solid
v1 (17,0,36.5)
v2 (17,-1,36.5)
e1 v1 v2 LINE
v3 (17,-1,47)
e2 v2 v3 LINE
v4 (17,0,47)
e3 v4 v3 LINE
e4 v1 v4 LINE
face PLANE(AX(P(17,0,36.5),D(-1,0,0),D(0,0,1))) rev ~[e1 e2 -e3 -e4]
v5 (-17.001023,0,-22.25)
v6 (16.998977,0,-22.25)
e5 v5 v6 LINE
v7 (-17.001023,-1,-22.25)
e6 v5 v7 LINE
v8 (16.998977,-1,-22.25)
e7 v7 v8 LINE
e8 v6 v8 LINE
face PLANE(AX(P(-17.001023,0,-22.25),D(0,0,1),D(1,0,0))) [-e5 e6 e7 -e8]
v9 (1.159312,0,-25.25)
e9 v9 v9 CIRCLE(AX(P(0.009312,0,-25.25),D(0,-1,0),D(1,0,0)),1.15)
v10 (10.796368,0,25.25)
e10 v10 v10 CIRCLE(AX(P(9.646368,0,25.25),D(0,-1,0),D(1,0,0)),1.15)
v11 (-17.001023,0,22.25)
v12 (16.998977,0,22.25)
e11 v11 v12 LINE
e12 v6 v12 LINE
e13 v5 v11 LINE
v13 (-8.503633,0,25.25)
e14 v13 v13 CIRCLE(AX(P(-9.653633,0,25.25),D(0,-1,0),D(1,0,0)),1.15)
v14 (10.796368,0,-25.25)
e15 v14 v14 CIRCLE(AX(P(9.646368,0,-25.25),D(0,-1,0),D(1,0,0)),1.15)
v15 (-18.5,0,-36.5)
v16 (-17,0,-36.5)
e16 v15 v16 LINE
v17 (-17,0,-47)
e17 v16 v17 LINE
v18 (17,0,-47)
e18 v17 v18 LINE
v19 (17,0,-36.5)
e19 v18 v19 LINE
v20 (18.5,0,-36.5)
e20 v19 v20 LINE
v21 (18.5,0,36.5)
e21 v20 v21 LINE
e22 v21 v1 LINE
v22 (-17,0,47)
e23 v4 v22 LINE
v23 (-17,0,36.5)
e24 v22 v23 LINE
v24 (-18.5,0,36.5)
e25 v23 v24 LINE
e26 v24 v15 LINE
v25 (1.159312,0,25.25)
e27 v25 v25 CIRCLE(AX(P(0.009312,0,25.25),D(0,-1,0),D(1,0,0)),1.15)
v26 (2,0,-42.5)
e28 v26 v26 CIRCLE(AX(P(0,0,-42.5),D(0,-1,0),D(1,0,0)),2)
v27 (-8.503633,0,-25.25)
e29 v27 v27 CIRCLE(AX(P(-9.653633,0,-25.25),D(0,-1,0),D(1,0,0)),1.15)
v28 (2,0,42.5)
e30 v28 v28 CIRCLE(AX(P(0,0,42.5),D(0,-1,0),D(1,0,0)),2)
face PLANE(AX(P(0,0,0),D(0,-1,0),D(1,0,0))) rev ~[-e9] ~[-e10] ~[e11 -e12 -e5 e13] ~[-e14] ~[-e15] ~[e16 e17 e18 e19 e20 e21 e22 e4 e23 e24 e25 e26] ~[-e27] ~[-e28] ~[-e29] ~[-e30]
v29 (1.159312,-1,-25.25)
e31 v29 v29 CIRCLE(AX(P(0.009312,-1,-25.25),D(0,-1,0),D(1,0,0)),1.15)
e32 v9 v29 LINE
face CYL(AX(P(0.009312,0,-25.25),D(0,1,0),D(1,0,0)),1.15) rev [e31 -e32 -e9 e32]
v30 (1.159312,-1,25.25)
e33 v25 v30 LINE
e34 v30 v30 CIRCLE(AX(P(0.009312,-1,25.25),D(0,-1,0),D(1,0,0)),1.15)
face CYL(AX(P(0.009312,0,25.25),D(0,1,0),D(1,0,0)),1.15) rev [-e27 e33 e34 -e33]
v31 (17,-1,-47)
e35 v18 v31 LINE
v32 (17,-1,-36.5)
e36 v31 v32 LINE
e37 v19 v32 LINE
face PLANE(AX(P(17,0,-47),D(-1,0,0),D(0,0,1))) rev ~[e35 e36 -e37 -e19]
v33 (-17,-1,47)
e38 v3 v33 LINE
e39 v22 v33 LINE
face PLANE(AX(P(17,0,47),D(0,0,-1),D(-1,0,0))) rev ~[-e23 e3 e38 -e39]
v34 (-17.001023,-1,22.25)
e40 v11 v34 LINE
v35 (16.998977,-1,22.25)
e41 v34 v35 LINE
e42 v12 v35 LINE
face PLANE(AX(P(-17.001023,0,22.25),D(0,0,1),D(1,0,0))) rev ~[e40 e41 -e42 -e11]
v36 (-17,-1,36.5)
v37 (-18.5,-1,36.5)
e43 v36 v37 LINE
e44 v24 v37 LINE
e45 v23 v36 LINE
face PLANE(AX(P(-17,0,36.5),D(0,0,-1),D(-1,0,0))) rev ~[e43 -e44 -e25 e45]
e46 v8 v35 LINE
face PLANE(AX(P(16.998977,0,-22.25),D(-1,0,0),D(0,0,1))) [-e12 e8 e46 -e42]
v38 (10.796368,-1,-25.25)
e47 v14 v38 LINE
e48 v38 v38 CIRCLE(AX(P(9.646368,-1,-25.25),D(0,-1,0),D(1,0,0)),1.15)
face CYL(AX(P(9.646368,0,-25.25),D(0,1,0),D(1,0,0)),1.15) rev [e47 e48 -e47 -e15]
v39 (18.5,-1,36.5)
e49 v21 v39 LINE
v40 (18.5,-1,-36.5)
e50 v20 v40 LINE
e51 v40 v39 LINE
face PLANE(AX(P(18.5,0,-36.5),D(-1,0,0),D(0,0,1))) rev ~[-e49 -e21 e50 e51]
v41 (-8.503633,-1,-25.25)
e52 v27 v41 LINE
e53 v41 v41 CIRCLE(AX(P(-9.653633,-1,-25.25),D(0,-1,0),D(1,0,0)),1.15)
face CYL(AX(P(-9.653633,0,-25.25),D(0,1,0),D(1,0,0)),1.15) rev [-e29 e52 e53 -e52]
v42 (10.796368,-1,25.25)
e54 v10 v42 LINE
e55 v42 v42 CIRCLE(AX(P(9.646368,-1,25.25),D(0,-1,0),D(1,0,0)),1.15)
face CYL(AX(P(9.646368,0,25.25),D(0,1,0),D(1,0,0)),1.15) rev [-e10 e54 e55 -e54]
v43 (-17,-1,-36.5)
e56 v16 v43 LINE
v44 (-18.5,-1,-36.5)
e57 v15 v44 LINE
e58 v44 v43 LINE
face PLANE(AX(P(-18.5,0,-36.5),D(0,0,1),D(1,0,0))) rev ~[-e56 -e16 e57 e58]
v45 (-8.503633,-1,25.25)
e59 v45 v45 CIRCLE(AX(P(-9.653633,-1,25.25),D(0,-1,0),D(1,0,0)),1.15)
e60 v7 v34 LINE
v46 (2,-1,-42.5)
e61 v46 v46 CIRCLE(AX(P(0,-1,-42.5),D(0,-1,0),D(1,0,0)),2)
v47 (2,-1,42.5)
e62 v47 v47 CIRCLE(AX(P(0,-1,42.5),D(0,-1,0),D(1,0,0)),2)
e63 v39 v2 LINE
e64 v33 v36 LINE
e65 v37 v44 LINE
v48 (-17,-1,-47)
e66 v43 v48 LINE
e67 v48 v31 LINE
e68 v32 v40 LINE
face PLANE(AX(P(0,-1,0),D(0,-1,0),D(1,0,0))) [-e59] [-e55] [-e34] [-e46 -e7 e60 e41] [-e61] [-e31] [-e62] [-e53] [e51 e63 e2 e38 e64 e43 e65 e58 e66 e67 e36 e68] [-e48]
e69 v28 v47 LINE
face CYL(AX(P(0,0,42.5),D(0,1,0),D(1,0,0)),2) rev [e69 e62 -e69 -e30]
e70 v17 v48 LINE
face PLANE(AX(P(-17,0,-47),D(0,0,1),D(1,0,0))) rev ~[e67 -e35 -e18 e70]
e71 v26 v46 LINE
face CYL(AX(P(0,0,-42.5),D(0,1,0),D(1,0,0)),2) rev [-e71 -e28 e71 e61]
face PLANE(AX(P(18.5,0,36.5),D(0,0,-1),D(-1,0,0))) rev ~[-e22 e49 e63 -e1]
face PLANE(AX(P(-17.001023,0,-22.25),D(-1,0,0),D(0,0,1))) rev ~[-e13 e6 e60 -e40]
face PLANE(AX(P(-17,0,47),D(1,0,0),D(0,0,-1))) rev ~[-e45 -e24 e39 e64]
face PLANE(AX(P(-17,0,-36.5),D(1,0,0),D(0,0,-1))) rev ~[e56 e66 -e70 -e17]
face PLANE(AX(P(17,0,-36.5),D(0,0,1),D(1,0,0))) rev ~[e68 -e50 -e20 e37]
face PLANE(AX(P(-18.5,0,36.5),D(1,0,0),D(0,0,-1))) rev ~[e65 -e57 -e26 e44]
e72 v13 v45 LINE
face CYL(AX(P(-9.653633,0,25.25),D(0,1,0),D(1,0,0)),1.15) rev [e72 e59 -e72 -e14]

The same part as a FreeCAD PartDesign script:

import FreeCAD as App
import Part
import Sketcher

V = App.Vector


def add_polygon(sketch, points):
    """Adds a closed chain of lines whose ends are joined by coincident constraints."""
    first, n = sketch.GeometryCount, len(points)
    for a, b in zip(points, points[1:] + points[:1]):
        sketch.addGeometry(Part.LineSegment(App.Vector(*a, 0), App.Vector(*b, 0)), False)
    for i in range(n):
        sketch.addConstraint(Sketcher.Constraint("Coincident", first + i, 2, first + (i + 1) % n, 1))

doc = App.newDocument("Part")
params = doc.addObject("Spreadsheet::Sheet", "Params")
for row, (alias, value) in enumerate([
    ("sketch1_diameter", "4 mm"),
    ("sketch1_diameter2", "2.3 mm"),
    ("sketch1_width", "34 mm"),
    ("sketch1_height", "73 mm"),
    ("sketch1_width2", "1.5 mm"),
    ("pad1_length", "1 mm"),
], start=1):
    params.set(f"A{row}", alias)
    params.set(f"B{row}", "=" + value)
    params.setAlias(f"B{row}", alias)

body = doc.addObject("PartDesign::Body", "Body")

# Sketch on XZ plane
sketch1 = doc.addObject("Sketcher::SketchObject", "Sketch")
body.addObject(sketch1)
sketch1.AttachmentSupport = (doc.XZ_Plane, [""])
sketch1.MapMode = "FlatFace"
add_polygon(sketch1, [(17, 47), (-17, 47), (-17, 36.5), (-18.5, 36.5), (-18.5, -36.5), (-17, -36.5), (-17, -47), (17, -47), (17, -36.5), (18.5, -36.5), (18.5, 36.5), (17, 36.5)])  # lines 0-11
sketch1.addGeometry(Part.Circle(V(-9.7, -25.2, 0), V(0, 0, 1), 1.1), False)  # 12
sketch1.addGeometry(Part.Circle(V(0, -42.5, 0), V(0, 0, 1), 2), False)  # 13
sketch1.addGeometry(Part.Circle(V(0, -25.2, 0), V(0, 0, 1), 1.1), False)  # 14
sketch1.addGeometry(Part.Circle(V(9.6, -25.2, 0), V(0, 0, 1), 1.1), False)  # 15
sketch1.addGeometry(Part.Circle(V(-9.7, 25.2, 0), V(0, 0, 1), 1.1), False)  # 16
add_polygon(sketch1, [(17, -22.2), (-17, -22.2), (-17, 22.2), (17, 22.2)])  # lines 17-20
sketch1.addGeometry(Part.Circle(V(0, 25.2, 0), V(0, 0, 1), 1.1), False)  # 21
sketch1.addGeometry(Part.Circle(V(0, 42.5, 0), V(0, 0, 1), 2), False)  # 22
sketch1.addGeometry(Part.Circle(V(9.6, 25.2, 0), V(0, 0, 1), 1.1), False)  # 23
sketch1.addConstraint(Sketcher.Constraint("Horizontal", 0))
sketch1.addConstraint(Sketcher.Constraint("Vertical", 1))
sketch1.addConstraint(Sketcher.Constraint("Horizontal", 2))
sketch1.addConstraint(Sketcher.Constraint("Vertical", 3))
sketch1.addConstraint(Sketcher.Constraint("Horizontal", 4))
sketch1.addConstraint(Sketcher.Constraint("Vertical", 5))
sketch1.addConstraint(Sketcher.Constraint("Horizontal", 6))
sketch1.addConstraint(Sketcher.Constraint("Vertical", 7))
sketch1.addConstraint(Sketcher.Constraint("Horizontal", 8))
sketch1.addConstraint(Sketcher.Constraint("Vertical", 9))
sketch1.addConstraint(Sketcher.Constraint("Horizontal", 10))
sketch1.addConstraint(Sketcher.Constraint("Vertical", 11))
sketch1.addConstraint(Sketcher.Constraint("Horizontal", 17))
sketch1.addConstraint(Sketcher.Constraint("Vertical", 18))
sketch1.addConstraint(Sketcher.Constraint("Horizontal", 19))
sketch1.addConstraint(Sketcher.Constraint("Vertical", 20))
sketch1.addConstraint(Sketcher.Constraint("Equal", 12, 14))
sketch1.addConstraint(Sketcher.Constraint("Equal", 14, 15))
sketch1.addConstraint(Sketcher.Constraint("Equal", 15, 16))
sketch1.addConstraint(Sketcher.Constraint("Equal", 16, 21))
sketch1.addConstraint(Sketcher.Constraint("Equal", 13, 22))
sketch1.addConstraint(Sketcher.Constraint("Equal", 21, 23))
sketch1.addConstraint(Sketcher.Constraint("Symmetric", 13, 3, 22, 3, -1, 1))
sketch1.addConstraint(Sketcher.Constraint("Symmetric", 0, 2, 6, 2, -1, 1))
sketch1.addConstraint(Sketcher.Constraint("Symmetric", 2, 2, 8, 2, -1, 1))
sketch1.addConstraint(Sketcher.Constraint("Symmetric", 4, 2, 10, 2, -1, 1))
sketch1.addConstraint(Sketcher.Constraint("Symmetric", 4, 2, 7, 2, -2))
sketch1.addConstraint(Sketcher.Constraint("Symmetric", 12, 3, 16, 3, -1))
sketch1.addConstraint(Sketcher.Constraint("Symmetric", 14, 3, 21, 3, -1))
sketch1.addConstraint(Sketcher.Constraint("Symmetric", 15, 3, 23, 3, -1))
sketch1.addConstraint(Sketcher.Constraint("PointOnObject", 13, 3, -2))
sketch1.addConstraint(Sketcher.Constraint("Horizontal", 12, 3, 14, 3))
sketch1.addConstraint(Sketcher.Constraint("Horizontal", 14, 3, 15, 3))
sketch1.addConstraint(Sketcher.Constraint("Equal", 6, 17))
sketch1.addConstraint(Sketcher.Constraint("Diameter", 13, 4.0))
sketch1.addConstraint(Sketcher.Constraint("Diameter", 12, 2.3))
sketch1.addConstraint(Sketcher.Constraint("DistanceX", 0, 2, 0, 1, 34.0))
sketch1.addConstraint(Sketcher.Constraint("DistanceY", 3, 2, 3, 1, 73.0))
sketch1.addConstraint(Sketcher.Constraint("DistanceX", 2, 2, 2, 1, 1.5))
sketch1.addConstraint(Sketcher.Constraint("DistanceY", 1, 2, 1, 1, 10.5))
sketch1.addConstraint(Sketcher.Constraint("DistanceY", 18, 1, 18, 2, 44.5))
sketch1.addConstraint(Sketcher.Constraint("DistanceY", 1, 2, 22, 3, 6.0))
sketch1.addConstraint(Sketcher.Constraint("DistanceY", 12, 3, 17, 2, 3.0))
sketch1.addConstraint(Sketcher.Constraint("DistanceY", 18, 2, 16, 3, 3.0))
sketch1.addConstraint(Sketcher.Constraint("DistanceX", 12, 3, 15, 3, 19.300001))
sketch1.addConstraint(Sketcher.Constraint("DistanceX", -1, 1, 15, 3, 9.646368))
sketch1.addConstraint(Sketcher.Constraint("DistanceX", 17, 2, 12, 3, 7.34739))
sketch1.addConstraint(Sketcher.Constraint("DistanceX", -1, 1, 14, 3, 0.009312))
sketch1.setExpression("Constraints[50]", "Params.sketch1_diameter")
sketch1.setExpression("Constraints[51]", "Params.sketch1_diameter2")
sketch1.setExpression("Constraints[52]", "Params.sketch1_width")
sketch1.setExpression("Constraints[53]", "Params.sketch1_height")
sketch1.setExpression("Constraints[54]", "Params.sketch1_width2")
pad1 = doc.addObject("PartDesign::Pad", "Pad")
body.addObject(pad1)
pad1.Profile = sketch1
pad1.setExpression("Length", "Params.pad1_length")

doc.recompute()
